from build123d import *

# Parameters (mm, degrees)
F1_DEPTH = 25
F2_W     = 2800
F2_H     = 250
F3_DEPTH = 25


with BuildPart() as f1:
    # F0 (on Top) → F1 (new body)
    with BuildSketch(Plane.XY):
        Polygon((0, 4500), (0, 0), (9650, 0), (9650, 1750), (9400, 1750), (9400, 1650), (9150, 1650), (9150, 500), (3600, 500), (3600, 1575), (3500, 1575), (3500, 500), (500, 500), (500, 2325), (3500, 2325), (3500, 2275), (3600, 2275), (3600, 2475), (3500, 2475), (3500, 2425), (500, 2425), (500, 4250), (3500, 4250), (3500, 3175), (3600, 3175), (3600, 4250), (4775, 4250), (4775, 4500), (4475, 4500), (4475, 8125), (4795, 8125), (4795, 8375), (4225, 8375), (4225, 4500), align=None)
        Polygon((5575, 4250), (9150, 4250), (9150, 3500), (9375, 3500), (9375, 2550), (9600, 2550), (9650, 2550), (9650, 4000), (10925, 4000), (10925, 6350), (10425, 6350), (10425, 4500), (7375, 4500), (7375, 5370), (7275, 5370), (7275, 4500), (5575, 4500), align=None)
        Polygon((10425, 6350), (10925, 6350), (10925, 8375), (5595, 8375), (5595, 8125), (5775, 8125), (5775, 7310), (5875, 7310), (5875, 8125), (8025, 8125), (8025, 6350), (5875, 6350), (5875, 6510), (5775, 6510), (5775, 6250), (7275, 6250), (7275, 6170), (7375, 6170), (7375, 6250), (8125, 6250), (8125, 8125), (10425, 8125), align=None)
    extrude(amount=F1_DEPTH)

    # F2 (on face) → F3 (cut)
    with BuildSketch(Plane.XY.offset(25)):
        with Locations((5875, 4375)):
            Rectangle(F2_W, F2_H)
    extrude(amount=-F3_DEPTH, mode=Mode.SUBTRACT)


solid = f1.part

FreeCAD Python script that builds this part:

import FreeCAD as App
import Part
import Sketcher
from FreeCAD import Vector

doc = App.newDocument("Part")
body = doc.addObject("PartDesign::Body", "Body")
body.AllowCompound = True

sketch1 = body.newObject("Sketcher::SketchObject", "Sketch")
sketch1.AttachmentSupport = (doc.getObject("XY_Plane"), [""])
sketch1.MapMode = "FlatFace"
sketch1.addGeometry(Part.LineSegment(Vector(0, 4500, 0), Vector(0, 0, 0)), False)
sketch1.addGeometry(Part.LineSegment(Vector(0, 0, 0), Vector(9650, 0, 0)), False)
sketch1.addGeometry(Part.LineSegment(Vector(9650, 0, 0), Vector(9650, 1750, 0)), False)
sketch1.addGeometry(Part.LineSegment(Vector(9650, 1750, 0), Vector(9400, 1750, 0)), False)
sketch1.addGeometry(Part.LineSegment(Vector(9400, 1750, 0), Vector(9400, 1650, 0)), False)
sketch1.addGeometry(Part.LineSegment(Vector(9400, 1650, 0), Vector(9150, 1650, 0)), False)
sketch1.addGeometry(Part.LineSegment(Vector(9150, 1650, 0), Vector(9150, 500, 0)), False)
sketch1.addGeometry(Part.LineSegment(Vector(9150, 500, 0), Vector(3600, 500, 0)), False)
sketch1.addGeometry(Part.LineSegment(Vector(3600, 500, 0), Vector(3600, 1575, 0)), False)
sketch1.addGeometry(Part.LineSegment(Vector(3600, 1575, 0), Vector(3500, 1575, 0)), False)
sketch1.addGeometry(Part.LineSegment(Vector(3500, 1575, 0), Vector(3500, 500, 0)), False)
sketch1.addGeometry(Part.LineSegment(Vector(3500, 500, 0), Vector(500, 500, 0)), False)
sketch1.addGeometry(Part.LineSegment(Vector(500, 500, 0), Vector(500, 2325, 0)), False)
sketch1.addGeometry(Part.LineSegment(Vector(500, 2325, 0), Vector(3500, 2325, 0)), False)
sketch1.addGeometry(Part.LineSegment(Vector(3500, 2325, 0), Vector(3500, 2275, 0)), False)
sketch1.addGeometry(Part.LineSegment(Vector(3500, 2275, 0), Vector(3600, 2275, 0)), False)
sketch1.addGeometry(Part.LineSegment(Vector(3600, 2275, 0), Vector(3600, 2475, 0)), False)
sketch1.addGeometry(Part.LineSegment(Vector(3600, 2475, 0), Vector(3500, 2475, 0)), False)
sketch1.addGeometry(Part.LineSegment(Vector(3500, 2475, 0), Vector(3500, 2425, 0)), False)
sketch1.addGeometry(Part.LineSegment(Vector(3500, 2425, 0), Vector(500, 2425, 0)), False)
sketch1.addGeometry(Part.LineSegment(Vector(500, 2425, 0), Vector(500, 4250, 0)), False)
sketch1.addGeometry(Part.LineSegment(Vector(500, 4250, 0), Vector(3500, 4250, 0)), False)
sketch1.addGeometry(Part.LineSegment(Vector(3500, 4250, 0), Vector(3500, 3175, 0)), False)
sketch1.addGeometry(Part.LineSegment(Vector(3500, 3175, 0), Vector(3600, 3175, 0)), False)
sketch1.addGeometry(Part.LineSegment(Vector(3600, 3175, 0), Vector(3600, 4250, 0)), False)
sketch1.addGeometry(Part.LineSegment(Vector(3600, 4250, 0), Vector(4775, 4250, 0)), False)
sketch1.addGeometry(Part.LineSegment(Vector(4775, 4250, 0), Vector(4775, 4500, 0)), False)
sketch1.addGeometry(Part.LineSegment(Vector(4775, 4500, 0), Vector(4475, 4500, 0)), False)
sketch1.addGeometry(Part.LineSegment(Vector(4475, 4500, 0), Vector(4475, 8125, 0)), False)
sketch1.addGeometry(Part.LineSegment(Vector(4475, 8125, 0), Vector(4795, 8125, 0)), False)
sketch1.addGeometry(Part.LineSegment(Vector(4795, 8125, 0), Vector(4795, 8375, 0)), False)
sketch1.addGeometry(Part.LineSegment(Vector(4795, 8375, 0), Vector(4225, 8375, 0)), False)
sketch1.addGeometry(Part.LineSegment(Vector(4225, 8375, 0), Vector(4225, 4500, 0)), False)
sketch1.addGeometry(Part.LineSegment(Vector(4225, 4500, 0), Vector(0, 4500, 0)), False)
sketch1.addGeometry(Part.LineSegment(Vector(5575, 4250, 0), Vector(9150, 4250, 0)), False)
sketch1.addGeometry(Part.LineSegment(Vector(9150, 4250, 0), Vector(9150, 3500, 0)), False)
sketch1.addGeometry(Part.LineSegment(Vector(9150, 3500, 0), Vector(9375, 3500, 0)), False)
sketch1.addGeometry(Part.LineSegment(Vector(9375, 3500, 0), Vector(9375, 2550, 0)), False)
sketch1.addGeometry(Part.LineSegment(Vector(9375, 2550, 0), Vector(9650, 2550, 0)), False)
sketch1.addGeometry(Part.LineSegment(Vector(9650, 2550, 0), Vector(9650, 4000, 0)), False)
sketch1.addGeometry(Part.LineSegment(Vector(9650, 4000, 0), Vector(10925, 4000, 0)), False)
sketch1.addGeometry(Part.LineSegment(Vector(10925, 4000, 0), Vector(10925, 8375, 0)), False)
sketch1.addGeometry(Part.LineSegment(Vector(10925, 8375, 0), Vector(5595, 8375, 0)), False)
sketch1.addGeometry(Part.LineSegment(Vector(5595, 8375, 0), Vector(5595, 8125, 0)), False)
sketch1.addGeometry(Part.LineSegment(Vector(5595, 8125, 0), Vector(5775, 8125, 0)), False)
sketch1.addGeometry(Part.LineSegment(Vector(5775, 8125, 0), Vector(5775, 7310, 0)), False)
sketch1.addGeometry(Part.LineSegment(Vector(5775, 7310, 0), Vector(5875, 7310, 0)), False)
sketch1.addGeometry(Part.LineSegment(Vector(5875, 7310, 0), Vector(5875, 8125, 0)), False)
sketch1.addGeometry(Part.LineSegment(Vector(5875, 8125, 0), Vector(8025, 8125, 0)), False)
sketch1.addGeometry(Part.LineSegment(Vector(8025, 8125, 0), Vector(8025, 6350, 0)), False)
sketch1.addGeometry(Part.LineSegment(Vector(8025, 6350, 0), Vector(5875, 6350, 0)), False)
sketch1.addGeometry(Part.LineSegment(Vector(5875, 6350, 0), Vector(5875, 6510, 0)), False)
sketch1.addGeometry(Part.LineSegment(Vector(5875, 6510, 0), Vector(5775, 6510, 0)), False)
sketch1.addGeometry(Part.LineSegment(Vector(5775, 6510, 0), Vector(5775, 6250, 0)), False)
sketch1.addGeometry(Part.LineSegment(Vector(5775, 6250, 0), Vector(7275, 6250, 0)), False)
sketch1.addGeometry(Part.LineSegment(Vector(7275, 6250, 0), Vector(7275, 6170, 0)), False)
sketch1.addGeometry(Part.LineSegment(Vector(7275, 6170, 0), Vector(7375, 6170, 0)), False)
sketch1.addGeometry(Part.LineSegment(Vector(7375, 6170, 0), Vector(7375, 6250, 0)), False)
sketch1.addGeometry(Part.LineSegment(Vector(7375, 6250, 0), Vector(8125, 6250, 0)), False)
sketch1.addGeometry(Part.LineSegment(Vector(8125, 6250, 0), Vector(8125, 8125, 0)), False)
sketch1.addGeometry(Part.LineSegment(Vector(8125, 8125, 0), Vector(10425, 8125, 0)), False)
sketch1.addGeometry(Part.LineSegment(Vector(10425, 8125, 0), Vector(10425, 4500, 0)), False)
sketch1.addGeometry(Part.LineSegment(Vector(10425, 4500, 0), Vector(7375, 4500, 0)), False)
sketch1.addGeometry(Part.LineSegment(Vector(7375, 4500, 0), Vector(7375, 5370, 0)), False)
sketch1.addGeometry(Part.LineSegment(Vector(7375, 5370, 0), Vector(7275, 5370, 0)), False)
sketch1.addGeometry(Part.LineSegment(Vector(7275, 5370, 0), Vector(7275, 4500, 0)), False)
sketch1.addGeometry(Part.LineSegment(Vector(7275, 4500, 0), Vector(5575, 4500, 0)), False)
sketch1.addGeometry(Part.LineSegment(Vector(5575, 4500, 0), Vector(5575, 4250, 0)), False)
sketch1.addConstraint(Sketcher.Constraint("Coincident", 0, 2, 1, 1))
sketch1.addConstraint(Sketcher.Constraint("Coincident", 1, 2, 2, 1))
sketch1.addConstraint(Sketcher.Constraint("Coincident", 2, 2, 3, 1))
sketch1.addConstraint(Sketcher.Constraint("Coincident", 3, 2, 4, 1))
sketch1.addConstraint(Sketcher.Constraint("Coincident", 4, 2, 5, 1))
sketch1.addConstraint(Sketcher.Constraint("Coincident", 5, 2, 6, 1))
sketch1.addConstraint(Sketcher.Constraint("Coincident", 6, 2, 7, 1))
sketch1.addConstraint(Sketcher.Constraint("Coincident", 7, 2, 8, 1))
sketch1.addConstraint(Sketcher.Constraint("Coincident", 8, 2, 9, 1))
sketch1.addConstraint(Sketcher.Constraint("Coincident", 9, 2, 10, 1))
sketch1.addConstraint(Sketcher.Constraint("Coincident", 10, 2, 11, 1))
sketch1.addConstraint(Sketcher.Constraint("Coincident", 11, 2, 12, 1))
sketch1.addConstraint(Sketcher.Constraint("Coincident", 12, 2, 13, 1))
sketch1.addConstraint(Sketcher.Constraint("Coincident", 13, 2, 14, 1))
sketch1.addConstraint(Sketcher.Constraint("Coincident", 14, 2, 15, 1))
sketch1.addConstraint(Sketcher.Constraint("Coincident", 15, 2, 16, 1))
sketch1.addConstraint(Sketcher.Constraint("Coincident", 16, 2, 17, 1))
sketch1.addConstraint(Sketcher.Constraint("Coincident", 17, 2, 18, 1))
sketch1.addConstraint(Sketcher.Constraint("Coincident", 18, 2, 19, 1))
sketch1.addConstraint(Sketcher.Constraint("Coincident", 19, 2, 20, 1))
sketch1.addConstraint(Sketcher.Constraint("Coincident", 20, 2, 21, 1))
sketch1.addConstraint(Sketcher.Constraint("Coincident", 21, 2, 22, 1))
sketch1.addConstraint(Sketcher.Constraint("Coincident", 22, 2, 23, 1))
sketch1.addConstraint(Sketcher.Constraint("Coincident", 23, 2, 24, 1))
sketch1.addConstraint(Sketcher.Constraint("Coincident", 24, 2, 25, 1))
sketch1.addConstraint(Sketcher.Constraint("Coincident", 25, 2, 26, 1))
sketch1.addConstraint(Sketcher.Constraint("Coincident", 26, 2, 27, 1))
sketch1.addConstraint(Sketcher.Constraint("Coincident", 27, 2, 28, 1))
sketch1.addConstraint(Sketcher.Constraint("Coincident", 28, 2, 29, 1))
sketch1.addConstraint(Sketcher.Constraint("Coincident", 29, 2, 30, 1))
sketch1.addConstraint(Sketcher.Constraint("Coincident", 30, 2, 31, 1))
sketch1.addConstraint(Sketcher.Constraint("Coincident", 31, 2, 32, 1))
sketch1.addConstraint(Sketcher.Constraint("Coincident", 32, 2, 33, 1))
sketch1.addConstraint(Sketcher.Constraint("Coincident", 33, 2, 0, 1))
sketch1.addConstraint(Sketcher.Constraint("Coincident", 34, 2, 35, 1))
sketch1.addConstraint(Sketcher.Constraint("Coincident", 35, 2, 36, 1))
sketch1.addConstraint(Sketcher.Constraint("Coincident", 36, 2, 37, 1))
sketch1.addConstraint(Sketcher.Constraint("Coincident", 37, 2, 38, 1))
sketch1.addConstraint(Sketcher.Constraint("Coincident", 38, 2, 39, 1))
sketch1.addConstraint(Sketcher.Constraint("Coincident", 39, 2, 40, 1))
sketch1.addConstraint(Sketcher.Constraint("Coincident", 40, 2, 41, 1))
sketch1.addConstraint(Sketcher.Constraint("Coincident", 41, 2, 42, 1))
sketch1.addConstraint(Sketcher.Constraint("Coincident", 42, 2, 43, 1))
sketch1.addConstraint(Sketcher.Constraint("Coincident", 43, 2, 44, 1))
sketch1.addConstraint(Sketcher.Constraint("Coincident", 44, 2, 45, 1))
sketch1.addConstraint(Sketcher.Constraint("Coincident", 45, 2, 46, 1))
sketch1.addConstraint(Sketcher.Constraint("Coincident", 46, 2, 47, 1))
sketch1.addConstraint(Sketcher.Constraint("Coincident", 47, 2, 48, 1))
sketch1.addConstraint(Sketcher.Constraint("Coincident", 48, 2, 49, 1))
sketch1.addConstraint(Sketcher.Constraint("Coincident", 49, 2, 50, 1))
sketch1.addConstraint(Sketcher.Constraint("Coincident", 50, 2, 51, 1))
sketch1.addConstraint(Sketcher.Constraint("Coincident", 51, 2, 52, 1))
sketch1.addConstraint(Sketcher.Constraint("Coincident", 52, 2, 53, 1))
sketch1.addConstraint(Sketcher.Constraint("Coincident", 53, 2, 54, 1))
sketch1.addConstraint(Sketcher.Constraint("Coincident", 54, 2, 55, 1))
sketch1.addConstraint(Sketcher.Constraint("Coincident", 55, 2, 56, 1))
sketch1.addConstraint(Sketcher.Constraint("Coincident", 56, 2, 57, 1))
sketch1.addConstraint(Sketcher.Constraint("Coincident", 57, 2, 58, 1))
sketch1.addConstraint(Sketcher.Constraint("Coincident", 58, 2, 59, 1))
sketch1.addConstraint(Sketcher.Constraint("Coincident", 59, 2, 60, 1))
sketch1.addConstraint(Sketcher.Constraint("Coincident", 60, 2, 61, 1))
sketch1.addConstraint(Sketcher.Constraint("Coincident", 61, 2, 62, 1))
sketch1.addConstraint(Sketcher.Constraint("Coincident", 62, 2, 63, 1))
sketch1.addConstraint(Sketcher.Constraint("Coincident", 63, 2, 64, 1))
sketch1.addConstraint(Sketcher.Constraint("Coincident", 64, 2, 65, 1))
sketch1.addConstraint(Sketcher.Constraint("Coincident", 65, 2, 66, 1))
sketch1.addConstraint(Sketcher.Constraint("Coincident", 66, 2, 67, 1))
sketch1.addConstraint(Sketcher.Constraint("Coincident", 67, 2, 34, 1))
sketch1.addConstraint(Sketcher.Constraint("Vertical", 0))
sketch1.addConstraint(Sketcher.Constraint("Horizontal", 1))
sketch1.addConstraint(Sketcher.Constraint("Vertical", 2))
sketch1.addConstraint(Sketcher.Constraint("Horizontal", 3))
sketch1.addConstraint(Sketcher.Constraint("Vertical", 4))
sketch1.addConstraint(Sketcher.Constraint("Horizontal", 5))
sketch1.addConstraint(Sketcher.Constraint("Vertical", 6))
sketch1.addConstraint(Sketcher.Constraint("Horizontal", 7))
sketch1.addConstraint(Sketcher.Constraint("Vertical", 8))
sketch1.addConstraint(Sketcher.Constraint("Horizontal", 9))
sketch1.addConstraint(Sketcher.Constraint("Vertical", 10))
sketch1.addConstraint(Sketcher.Constraint("Horizontal", 11))
sketch1.addConstraint(Sketcher.Constraint("Vertical", 12))
sketch1.addConstraint(Sketcher.Constraint("Horizontal", 13))
sketch1.addConstraint(Sketcher.Constraint("Vertical", 14))
sketch1.addConstraint(Sketcher.Constraint("Horizontal", 15))
sketch1.addConstraint(Sketcher.Constraint("Vertical", 16))
sketch1.addConstraint(Sketcher.Constraint("Horizontal", 17))
sketch1.addConstraint(Sketcher.Constraint("Vertical", 18))
sketch1.addConstraint(Sketcher.Constraint("Horizontal", 19))
sketch1.addConstraint(Sketcher.Constraint("Vertical", 20))
sketch1.addConstraint(Sketcher.Constraint("Horizontal", 21))
sketch1.addConstraint(Sketcher.Constraint("Vertical", 22))
sketch1.addConstraint(Sketcher.Constraint("Horizontal", 23))
sketch1.addConstraint(Sketcher.Constraint("Vertical", 24))
sketch1.addConstraint(Sketcher.Constraint("Horizontal", 25))
sketch1.addConstraint(Sketcher.Constraint("Vertical", 26))
sketch1.addConstraint(Sketcher.Constraint("Horizontal", 27))
sketch1.addConstraint(Sketcher.Constraint("Vertical", 28))
sketch1.addConstraint(Sketcher.Constraint("Horizontal", 29))
sketch1.addConstraint(Sketcher.Constraint("Vertical", 30))
sketch1.addConstraint(Sketcher.Constraint("Horizontal", 31))
sketch1.addConstraint(Sketcher.Constraint("Vertical", 32))
sketch1.addConstraint(Sketcher.Constraint("Horizontal", 33))
sketch1.addConstraint(Sketcher.Constraint("Horizontal", 34))
sketch1.addConstraint(Sketcher.Constraint("Vertical", 35))
sketch1.addConstraint(Sketcher.Constraint("Horizontal", 36))
sketch1.addConstraint(Sketcher.Constraint("Vertical", 37))
sketch1.addConstraint(Sketcher.Constraint("Horizontal", 38))
sketch1.addConstraint(Sketcher.Constraint("Vertical", 39))
sketch1.addConstraint(Sketcher.Constraint("Horizontal", 40))
sketch1.addConstraint(Sketcher.Constraint("Vertical", 41))
sketch1.addConstraint(Sketcher.Constraint("Horizontal", 42))
sketch1.addConstraint(Sketcher.Constraint("Vertical", 43))
sketch1.addConstraint(Sketcher.Constraint("Horizontal", 44))
sketch1.addConstraint(Sketcher.Constraint("Vertical", 45))
sketch1.addConstraint(Sketcher.Constraint("Horizontal", 46))
sketch1.addConstraint(Sketcher.Constraint("Vertical", 47))
sketch1.addConstraint(Sketcher.Constraint("Horizontal", 48))
sketch1.addConstraint(Sketcher.Constraint("Vertical", 49))
sketch1.addConstraint(Sketcher.Constraint("Horizontal", 50))
sketch1.addConstraint(Sketcher.Constraint("Vertical", 51))
sketch1.addConstraint(Sketcher.Constraint("Horizontal", 52))
sketch1.addConstraint(Sketcher.Constraint("Vertical", 53))
sketch1.addConstraint(Sketcher.Constraint("Horizontal", 54))
sketch1.addConstraint(Sketcher.Constraint("Vertical", 55))
sketch1.addConstraint(Sketcher.Constraint("Horizontal", 56))
sketch1.addConstraint(Sketcher.Constraint("Vertical", 57))
sketch1.addConstraint(Sketcher.Constraint("Horizontal", 58))
sketch1.addConstraint(Sketcher.Constraint("Vertical", 59))
sketch1.addConstraint(Sketcher.Constraint("Horizontal", 60))
sketch1.addConstraint(Sketcher.Constraint("Vertical", 61))
sketch1.addConstraint(Sketcher.Constraint("Horizontal", 62))
sketch1.addConstraint(Sketcher.Constraint("Vertical", 63))
sketch1.addConstraint(Sketcher.Constraint("Horizontal", 64))
sketch1.addConstraint(Sketcher.Constraint("Vertical", 65))
sketch1.addConstraint(Sketcher.Constraint("Horizontal", 66))
sketch1.addConstraint(Sketcher.Constraint("Vertical", 67))
sketch1.addConstraint(Sketcher.Constraint("Coincident", 0, 2, -1, 1))
sketch1.addConstraint(Sketcher.Constraint("Horizontal", 7, 2, 10, 2))
sketch1.addConstraint(Sketcher.Constraint("Horizontal", 21, 2, 24, 2))
sketch1.addConstraint(Sketcher.Constraint("Horizontal", 27, 2, 32, 2))
sketch1.addConstraint(Sketcher.Constraint("Horizontal", 25, 2, 34, 2))
sketch1.addConstraint(Sketcher.Constraint("Horizontal", 31, 2, 41, 2))
sketch1.addConstraint(Sketcher.Constraint("Horizontal", 29, 2, 43, 2))
sketch1.addConstraint(Sketcher.Constraint("Horizontal", 44, 2, 47, 2))
sketch1.addConstraint(Sketcher.Constraint("Horizontal", 54, 2, 57, 2))
sketch1.addConstraint(Sketcher.Constraint("Horizontal", 48, 2, 59, 2))
sketch1.addConstraint(Sketcher.Constraint("Horizontal", 33, 2, 61, 2))
sketch1.addConstraint(Sketcher.Constraint("Horizontal", 62, 2, 65, 2))
sketch1.addConstraint(Sketcher.Constraint("Vertical", 10, 2, 13, 2))
sketch1.addConstraint(Sketcher.Constraint("Vertical", 8, 2, 15, 2))
sketch1.addConstraint(Sketcher.Constraint("Vertical", 14, 2, 17, 2))
sketch1.addConstraint(Sketcher.Constraint("Vertical", 12, 2, 19, 2))
sketch1.addConstraint(Sketcher.Constraint("Vertical", 18, 2, 21, 2))
sketch1.addConstraint(Sketcher.Constraint("Vertical", 16, 2, 23, 2))
sketch1.addConstraint(Sketcher.Constraint("Vertical", 6, 2, 34, 2))
sketch1.addConstraint(Sketcher.Constraint("Vertical", 2, 2, 38, 2))
sketch1.addConstraint(Sketcher.Constraint("Vertical", 47, 2, 50, 2))
sketch1.addConstraint(Sketcher.Constraint("Vertical", 45, 2, 52, 2))
sketch1.addConstraint(Sketcher.Constraint("Vertical", 57, 2, 62, 2))
sketch1.addConstraint(Sketcher.Constraint("Vertical", 55, 2, 64, 2))
sketch1.addConstraint(Sketcher.Constraint("Equal", 3, 5))
sketch1.addConstraint(Sketcher.Constraint("Equal", 23, 46))
sketch1.addConstraint(Sketcher.Constraint("Equal", 52, 56))
sketch1.addConstraint(Sketcher.Constraint("Equal", 64, 4))
sketch1.addConstraint(Sketcher.Constraint("Equal", 14, 18))
sketch1.addConstraint(Sketcher.Constraint("Equal", 12, 20))
sketch1.addConstraint(Sketcher.Constraint("Equal", 10, 22))
sketch1.addConstraint(Sketcher.Constraint("Equal", 5, 26))
sketch1.addConstraint(Sketcher.Constraint("Equal", 26, 30))
sketch1.addConstraint(Sketcher.Constraint("Equal", 58, 35))
sketch1.addConstraint(Sketcher.Constraint("DistanceX", 1, 1, 1, 2, 9650.0))
sketch1.addConstraint(Sketcher.Constraint("DistanceX", 3, 2, 3, 1, 250.0))
sketch1.addConstraint(Sketcher.Constraint("DistanceX", 7, 2, 7, 1, 5550.0))
sketch1.addConstraint(Sketcher.Constraint("DistanceX", 9, 2, 9, 1, 100.0))
sketch1.addConstraint(Sketcher.Constraint("DistanceX", 11, 2, 11, 1, 3000.0))
sketch1.addConstraint(Sketcher.Constraint("DistanceX", 25, 1, 25, 2, 1175.0))
sketch1.addConstraint(Sketcher.Constraint("DistanceX", 27, 2, 27, 1, 300.0))
sketch1.addConstraint(Sketcher.Constraint("DistanceX", 29, 1, 29, 2, 320.0))
sketch1.addConstraint(Sketcher.Constraint("DistanceX", 31, 2, 31, 1, 570.0))
sketch1.addConstraint(Sketcher.Constraint("DistanceX", 34, 1, 34, 2, 3575.0))
sketch1.addConstraint(Sketcher.Constraint("DistanceX", 36, 1, 36, 2, 225.0))
sketch1.addConstraint(Sketcher.Constraint("DistanceX", 40, 1, 40, 2, 1275.0))
sketch1.addConstraint(Sketcher.Constraint("DistanceX", 42, 2, 42, 1, 5330.0))
sketch1.addConstraint(Sketcher.Constraint("DistanceX", 44, 1, 44, 2, 180.0))
sketch1.addConstraint(Sketcher.Constraint("DistanceX", 48, 1, 48, 2, 2150.0))
sketch1.addConstraint(Sketcher.Constraint("DistanceX", 54, 1, 54, 2, 1500.0))
sketch1.addConstraint(Sketcher.Constraint("DistanceX", 58, 1, 58, 2, 750.0))
sketch1.addConstraint(Sketcher.Constraint("DistanceX", 60, 1, 60, 2, 2300.0))
sketch1.addConstraint(Sketcher.Constraint("DistanceY", 0, 2, 0, 1, 4500.0))
sketch1.addConstraint(Sketcher.Constraint("DistanceY", 2, 1, 2, 2, 1750.0))
sketch1.addConstraint(Sketcher.Constraint("DistanceY", 6, 2, 6, 1, 1150.0))
sketch1.addConstraint(Sketcher.Constraint("DistanceY", 8, 1, 8, 2, 1075.0))
sketch1.addConstraint(Sketcher.Constraint("DistanceY", 12, 1, 12, 2, 1825.0))
sketch1.addConstraint(Sketcher.Constraint("DistanceY", 14, 2, 14, 1, 50.0))
sketch1.addConstraint(Sketcher.Constraint("DistanceY", 28, 1, 28, 2, 3625.0))
sketch1.addConstraint(Sketcher.Constraint("DistanceY", 37, 2, 37, 1, 950.0))
sketch1.addConstraint(Sketcher.Constraint("DistanceY", 39, 1, 39, 2, 1450.0))
sketch1.addConstraint(Sketcher.Constraint("DistanceY", 45, 2, 45, 1, 815.0))
sketch1.addConstraint(Sketcher.Constraint("DistanceY", 49, 2, 49, 1, 1775.0))
sketch1.addConstraint(Sketcher.Constraint("DistanceY", 51, 1, 51, 2, 160.0))
sketch1.addConstraint(Sketcher.Constraint("DistanceY", 53, 2, 53, 1, 260.0))
sketch1.addConstraint(Sketcher.Constraint("DistanceY", 55, 2, 55, 1, 80.0))
sketch1.addConstraint(Sketcher.Constraint("DistanceY", 63, 1, 63, 2, 870.0))
pad1 = body.newObject("PartDesign::Pad", "Pad")
pad1.Profile = sketch1
pad1.Length = 25

sketch2 = body.newObject("Sketcher::SketchObject", "Sketch001")
sketch2.AttachmentSupport = (doc.getObject("XY_Plane"), [""])
sketch2.MapMode = "FlatFace"
sketch2.AttachmentOffset = App.Placement(Vector(0, 0, 25), App.Rotation())
sketch2.addGeometry(Part.LineSegment(Vector(4475, 4500, 0), Vector(4475, 4250, 0)), False)
sketch2.addGeometry(Part.LineSegment(Vector(4475, 4250, 0), Vector(7275, 4250, 0)), False)
sketch2.addGeometry(Part.LineSegment(Vector(7275, 4250, 0), Vector(7275, 4500, 0)), False)
sketch2.addGeometry(Part.LineSegment(Vector(7275, 4500, 0), Vector(4475, 4500, 0)), False)
sketch2.addConstraint(Sketcher.Constraint("Coincident", 0, 2, 1, 1))
sketch2.addConstraint(Sketcher.Constraint("Coincident", 1, 2, 2, 1))
sketch2.addConstraint(Sketcher.Constraint("Coincident", 2, 2, 3, 1))
sketch2.addConstraint(Sketcher.Constraint("Coincident", 3, 2, 0, 1))
sketch2.addConstraint(Sketcher.Constraint("Vertical", 0))
sketch2.addConstraint(Sketcher.Constraint("Horizontal", 1))
sketch2.addConstraint(Sketcher.Constraint("Vertical", 2))
sketch2.addConstraint(Sketcher.Constraint("Horizontal", 3))
sketch2.addConstraint(Sketcher.Constraint("DistanceX", 1, 1, 1, 2, 2800.0))
sketch2.addConstraint(Sketcher.Constraint("DistanceY", 0, 2, 0, 1, 250.0))
sketch2.addConstraint(Sketcher.Constraint("DistanceX", -1, 1, 0, 2, 4475.0))
sketch2.addConstraint(Sketcher.Constraint("DistanceY", -1, 1, 0, 2, 4250.0))
pocket1 = body.newObject("PartDesign::Pocket", "Pocket")
pocket1.Profile = sketch2
pocket1.Length = 25

doc.recompute()
